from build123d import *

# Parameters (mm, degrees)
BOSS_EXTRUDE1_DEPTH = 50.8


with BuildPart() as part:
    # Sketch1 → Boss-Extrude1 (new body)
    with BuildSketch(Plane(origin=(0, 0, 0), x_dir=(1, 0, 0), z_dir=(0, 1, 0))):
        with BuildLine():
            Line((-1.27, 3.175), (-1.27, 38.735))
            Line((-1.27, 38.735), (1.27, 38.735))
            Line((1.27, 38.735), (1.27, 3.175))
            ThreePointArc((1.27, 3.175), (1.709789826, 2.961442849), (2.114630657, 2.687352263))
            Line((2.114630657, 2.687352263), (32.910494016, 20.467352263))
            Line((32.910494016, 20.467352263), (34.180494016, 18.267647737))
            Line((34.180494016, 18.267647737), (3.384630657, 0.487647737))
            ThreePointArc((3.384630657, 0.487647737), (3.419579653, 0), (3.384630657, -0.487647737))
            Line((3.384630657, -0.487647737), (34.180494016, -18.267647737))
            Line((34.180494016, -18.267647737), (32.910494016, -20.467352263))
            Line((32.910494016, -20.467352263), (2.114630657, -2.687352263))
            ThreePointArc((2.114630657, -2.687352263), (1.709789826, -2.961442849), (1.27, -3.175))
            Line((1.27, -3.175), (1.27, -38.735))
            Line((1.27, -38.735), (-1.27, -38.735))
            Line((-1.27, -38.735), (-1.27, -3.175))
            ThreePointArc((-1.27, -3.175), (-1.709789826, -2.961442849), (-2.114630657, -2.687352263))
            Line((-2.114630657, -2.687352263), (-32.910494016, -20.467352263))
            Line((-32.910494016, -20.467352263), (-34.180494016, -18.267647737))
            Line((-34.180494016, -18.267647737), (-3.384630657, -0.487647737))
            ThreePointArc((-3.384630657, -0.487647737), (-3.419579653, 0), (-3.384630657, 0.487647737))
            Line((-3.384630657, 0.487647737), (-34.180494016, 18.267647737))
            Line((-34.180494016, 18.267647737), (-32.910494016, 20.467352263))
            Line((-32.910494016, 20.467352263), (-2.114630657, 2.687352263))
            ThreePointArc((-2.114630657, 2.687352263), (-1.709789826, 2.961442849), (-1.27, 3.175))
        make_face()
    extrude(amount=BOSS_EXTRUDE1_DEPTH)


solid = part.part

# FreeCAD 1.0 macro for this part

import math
import FreeCAD as App
import Part
import Sketcher

V = App.Vector
Q = App.Units.Quantity

doc = App.newDocument("Part")
params = doc.addObject("Spreadsheet::Sheet", "Params")
for row, (alias, value) in enumerate([
    ("sketch1_width", "0.1 in"),
    ("sketch1_height", "1.4 in"),
    ("sketch1_length", "1.4 in"),
    ("sketch1_length2", "0.1 in"),
    ("pad1_length", "2 in"),
], start=1):
    params.set(f"A{row}", alias)
    params.set(f"B{row}", "=" + value)
    params.setAlias(f"B{row}", alias)

body = doc.addObject("PartDesign::Body", "Body")

# Sketch on XZ plane
sketch1 = body.newObject("Sketcher::SketchObject", "Sketch")
sketch1.AttachmentSupport = (doc.getObject("XZ_Plane"), [""])
sketch1.MapMode = "FlatFace"
sketch1.addGeometry([
    Part.LineSegment(V(-1.3, -38.7, 0), V(-1.3, -3.2, 0)),  # 0
    Part.ArcOfCircle(Part.Circle(V(0, 0, 0), V(0, 0, 1), 3.4), math.radians(-128.2), math.radians(-111.8)),  # 1
    Part.LineSegment(V(-2.1, -2.7, 0), V(-32.9, -20.5, 0)),  # 2
    Part.LineSegment(V(-32.9, -20.5, 0), V(-34.2, -18.3, 0)),  # 3
    Part.LineSegment(V(-34.2, -18.3, 0), V(-3.4, -0.5, 0)),  # 4
    Part.ArcOfCircle(Part.Circle(V(0, 0, 0), V(0, 0, 1), 3.4), math.radians(171.8), math.radians(188.2)),  # 5
    Part.LineSegment(V(-3.4, 0.5, 0), V(-34.2, 18.3, 0)),  # 6
    Part.LineSegment(V(-34.2, 18.3, 0), V(-32.9, 20.5, 0)),  # 7
    Part.LineSegment(V(-32.9, 20.5, 0), V(-2.1, 2.7, 0)),  # 8
    Part.ArcOfCircle(Part.Circle(V(0, 0, 0), V(0, 0, 1), 3.4), math.radians(111.8), math.radians(128.2)),  # 9
    Part.LineSegment(V(-1.3, 3.2, 0), V(-1.3, 38.7, 0)),  # 10
    Part.LineSegment(V(-1.3, 38.7, 0), V(1.3, 38.7, 0)),  # 11
    Part.LineSegment(V(1.3, 38.7, 0), V(1.3, 3.2, 0)),  # 12
    Part.ArcOfCircle(Part.Circle(V(0, 0, 0), V(0, 0, 1), 3.4), math.radians(51.8), math.radians(68.2)),  # 13
    Part.LineSegment(V(2.1, 2.7, 0), V(32.9, 20.5, 0)),  # 14
    Part.LineSegment(V(32.9, 20.5, 0), V(34.2, 18.3, 0)),  # 15
    Part.LineSegment(V(34.2, 18.3, 0), V(3.4, 0.5, 0)),  # 16
    Part.ArcOfCircle(Part.Circle(V(0, 0, 0), V(0, 0, 1), 3.4), math.radians(-8.2), math.radians(8.2)),  # 17
    Part.LineSegment(V(3.4, -0.5, 0), V(34.2, -18.3, 0)),  # 18
    Part.LineSegment(V(34.2, -18.3, 0), V(32.9, -20.5, 0)),  # 19
    Part.LineSegment(V(32.9, -20.5, 0), V(2.1, -2.7, 0)),  # 20
    Part.ArcOfCircle(Part.Circle(V(0, 0, 0), V(0, 0, 1), 3.4), math.radians(-68.2), math.radians(-51.8)),  # 21
    Part.LineSegment(V(1.3, -3.2, 0), V(1.3, -38.7, 0)),  # 22
    Part.LineSegment(V(1.3, -38.7, 0), V(-1.3, -38.7, 0)),  # 23
], False)
sketch1.addConstraint([
    Sketcher.Constraint("Coincident", 0, 2, 1, 2),
    Sketcher.Constraint("Coincident", 1, 1, 2, 1),
    Sketcher.Constraint("Coincident", 2, 2, 3, 1),
    Sketcher.Constraint("Coincident", 3, 2, 4, 1),
    Sketcher.Constraint("Coincident", 4, 2, 5, 2),
    Sketcher.Constraint("Coincident", 5, 1, 6, 1),
    Sketcher.Constraint("Coincident", 6, 2, 7, 1),
    Sketcher.Constraint("Coincident", 7, 2, 8, 1),
    Sketcher.Constraint("Coincident", 8, 2, 9, 2),
    Sketcher.Constraint("Coincident", 9, 1, 10, 1),
    Sketcher.Constraint("Coincident", 10, 2, 11, 1),
    Sketcher.Constraint("Coincident", 11, 2, 12, 1),
    Sketcher.Constraint("Coincident", 12, 2, 13, 2),
    Sketcher.Constraint("Coincident", 13, 1, 14, 1),
    Sketcher.Constraint("Coincident", 14, 2, 15, 1),
    Sketcher.Constraint("Coincident", 15, 2, 16, 1),
    Sketcher.Constraint("Coincident", 16, 2, 17, 2),
    Sketcher.Constraint("Coincident", 17, 1, 18, 1),
    Sketcher.Constraint("Coincident", 18, 2, 19, 1),
    Sketcher.Constraint("Coincident", 19, 2, 20, 1),
    Sketcher.Constraint("Coincident", 20, 2, 21, 2),
    Sketcher.Constraint("Coincident", 21, 1, 22, 1),
    Sketcher.Constraint("Coincident", 22, 2, 23, 1),
    Sketcher.Constraint("Coincident", 23, 2, 0, 1),
    Sketcher.Constraint("Vertical", 0),
    Sketcher.Constraint("Vertical", 10),
    Sketcher.Constraint("Horizontal", 11),
    Sketcher.Constraint("Vertical", 12),
    Sketcher.Constraint("Vertical", 22),
    Sketcher.Constraint("Horizontal", 23),
    Sketcher.Constraint("Coincident", 1, 3, -1, 1),
    Sketcher.Constraint("Coincident", 5, 3, -1, 1),
    Sketcher.Constraint("Coincident", 9, 3, -1, 1),
    Sketcher.Constraint("Coincident", 13, 3, -1, 1),
    Sketcher.Constraint("Coincident", 17, 3, -1, 1),
    Sketcher.Constraint("Coincident", 21, 3, -1, 1),
    Sketcher.Constraint("Equal", 1, 5),
    Sketcher.Constraint("Equal", 5, 9),
    Sketcher.Constraint("Equal", 9, 13),
    Sketcher.Constraint("Equal", 13, 17),
    Sketcher.Constraint("Equal", 17, 21),
    Sketcher.Constraint("Symmetric", 2, 2, 14, 2, -1, 1),
    Sketcher.Constraint("Symmetric", 3, 2, 15, 2, -1, 1),
    Sketcher.Constraint("Symmetric", 6, 2, 18, 2, -1, 1),
    Sketcher.Constraint("Symmetric", 7, 2, 19, 2, -1, 1),
    Sketcher.Constraint("Symmetric", 10, 2, 22, 2, -1, 1),
    Sketcher.Constraint("Symmetric", 7, 2, 14, 2, -2),
    Sketcher.Constraint("Symmetric", 6, 2, 15, 2, -2),
    Sketcher.Constraint("Perpendicular", 2, 3),
    Sketcher.Constraint("Perpendicular", 3, 4),
    Sketcher.Constraint("Perpendicular", 6, 7),
    Sketcher.Constraint("Perpendicular", 7, 8),
    Sketcher.Constraint("Parallel", 4, 14),
    Sketcher.Constraint("Perpendicular", 15, 16),
    Sketcher.Constraint("Parallel", 8, 18),
    Sketcher.Constraint("Perpendicular", 19, 20),
    Sketcher.Constraint("Horizontal", 9, 1, 12, 2),
    Sketcher.Constraint("Horizontal", 0, 2, 21, 1),
    Sketcher.Constraint("Equal", 2, 4),
    Sketcher.Constraint("DistanceX", 11, 1, 11, 2, Q("0.1 in")),
    Sketcher.Constraint("DistanceY", 0, 1, 0, 2, Q("1.4 in")),
    Sketcher.Constraint("Angle", 2, Q("-150 deg")),
    Sketcher.Constraint("Distance", 2, Q("1.4 in")),
    Sketcher.Constraint("Distance", 3, Q("0.1 in")),
    Sketcher.Constraint("DistanceY", 0, 2, -1, 1, Q("0.125 in")),
])
sketch1.setExpression("Constraints[59]", "Params.sketch1_width")
sketch1.setExpression("Constraints[60]", "Params.sketch1_height")
sketch1.setExpression("Constraints[62]", "Params.sketch1_length")
sketch1.setExpression("Constraints[63]", "Params.sketch1_length2")
pad1 = body.newObject("PartDesign::Pad", "Pad")
pad1.Profile = sketch1
pad1.setExpression("Length", "Params.pad1_length")
pad1.Reversed = True

doc.recompute()
